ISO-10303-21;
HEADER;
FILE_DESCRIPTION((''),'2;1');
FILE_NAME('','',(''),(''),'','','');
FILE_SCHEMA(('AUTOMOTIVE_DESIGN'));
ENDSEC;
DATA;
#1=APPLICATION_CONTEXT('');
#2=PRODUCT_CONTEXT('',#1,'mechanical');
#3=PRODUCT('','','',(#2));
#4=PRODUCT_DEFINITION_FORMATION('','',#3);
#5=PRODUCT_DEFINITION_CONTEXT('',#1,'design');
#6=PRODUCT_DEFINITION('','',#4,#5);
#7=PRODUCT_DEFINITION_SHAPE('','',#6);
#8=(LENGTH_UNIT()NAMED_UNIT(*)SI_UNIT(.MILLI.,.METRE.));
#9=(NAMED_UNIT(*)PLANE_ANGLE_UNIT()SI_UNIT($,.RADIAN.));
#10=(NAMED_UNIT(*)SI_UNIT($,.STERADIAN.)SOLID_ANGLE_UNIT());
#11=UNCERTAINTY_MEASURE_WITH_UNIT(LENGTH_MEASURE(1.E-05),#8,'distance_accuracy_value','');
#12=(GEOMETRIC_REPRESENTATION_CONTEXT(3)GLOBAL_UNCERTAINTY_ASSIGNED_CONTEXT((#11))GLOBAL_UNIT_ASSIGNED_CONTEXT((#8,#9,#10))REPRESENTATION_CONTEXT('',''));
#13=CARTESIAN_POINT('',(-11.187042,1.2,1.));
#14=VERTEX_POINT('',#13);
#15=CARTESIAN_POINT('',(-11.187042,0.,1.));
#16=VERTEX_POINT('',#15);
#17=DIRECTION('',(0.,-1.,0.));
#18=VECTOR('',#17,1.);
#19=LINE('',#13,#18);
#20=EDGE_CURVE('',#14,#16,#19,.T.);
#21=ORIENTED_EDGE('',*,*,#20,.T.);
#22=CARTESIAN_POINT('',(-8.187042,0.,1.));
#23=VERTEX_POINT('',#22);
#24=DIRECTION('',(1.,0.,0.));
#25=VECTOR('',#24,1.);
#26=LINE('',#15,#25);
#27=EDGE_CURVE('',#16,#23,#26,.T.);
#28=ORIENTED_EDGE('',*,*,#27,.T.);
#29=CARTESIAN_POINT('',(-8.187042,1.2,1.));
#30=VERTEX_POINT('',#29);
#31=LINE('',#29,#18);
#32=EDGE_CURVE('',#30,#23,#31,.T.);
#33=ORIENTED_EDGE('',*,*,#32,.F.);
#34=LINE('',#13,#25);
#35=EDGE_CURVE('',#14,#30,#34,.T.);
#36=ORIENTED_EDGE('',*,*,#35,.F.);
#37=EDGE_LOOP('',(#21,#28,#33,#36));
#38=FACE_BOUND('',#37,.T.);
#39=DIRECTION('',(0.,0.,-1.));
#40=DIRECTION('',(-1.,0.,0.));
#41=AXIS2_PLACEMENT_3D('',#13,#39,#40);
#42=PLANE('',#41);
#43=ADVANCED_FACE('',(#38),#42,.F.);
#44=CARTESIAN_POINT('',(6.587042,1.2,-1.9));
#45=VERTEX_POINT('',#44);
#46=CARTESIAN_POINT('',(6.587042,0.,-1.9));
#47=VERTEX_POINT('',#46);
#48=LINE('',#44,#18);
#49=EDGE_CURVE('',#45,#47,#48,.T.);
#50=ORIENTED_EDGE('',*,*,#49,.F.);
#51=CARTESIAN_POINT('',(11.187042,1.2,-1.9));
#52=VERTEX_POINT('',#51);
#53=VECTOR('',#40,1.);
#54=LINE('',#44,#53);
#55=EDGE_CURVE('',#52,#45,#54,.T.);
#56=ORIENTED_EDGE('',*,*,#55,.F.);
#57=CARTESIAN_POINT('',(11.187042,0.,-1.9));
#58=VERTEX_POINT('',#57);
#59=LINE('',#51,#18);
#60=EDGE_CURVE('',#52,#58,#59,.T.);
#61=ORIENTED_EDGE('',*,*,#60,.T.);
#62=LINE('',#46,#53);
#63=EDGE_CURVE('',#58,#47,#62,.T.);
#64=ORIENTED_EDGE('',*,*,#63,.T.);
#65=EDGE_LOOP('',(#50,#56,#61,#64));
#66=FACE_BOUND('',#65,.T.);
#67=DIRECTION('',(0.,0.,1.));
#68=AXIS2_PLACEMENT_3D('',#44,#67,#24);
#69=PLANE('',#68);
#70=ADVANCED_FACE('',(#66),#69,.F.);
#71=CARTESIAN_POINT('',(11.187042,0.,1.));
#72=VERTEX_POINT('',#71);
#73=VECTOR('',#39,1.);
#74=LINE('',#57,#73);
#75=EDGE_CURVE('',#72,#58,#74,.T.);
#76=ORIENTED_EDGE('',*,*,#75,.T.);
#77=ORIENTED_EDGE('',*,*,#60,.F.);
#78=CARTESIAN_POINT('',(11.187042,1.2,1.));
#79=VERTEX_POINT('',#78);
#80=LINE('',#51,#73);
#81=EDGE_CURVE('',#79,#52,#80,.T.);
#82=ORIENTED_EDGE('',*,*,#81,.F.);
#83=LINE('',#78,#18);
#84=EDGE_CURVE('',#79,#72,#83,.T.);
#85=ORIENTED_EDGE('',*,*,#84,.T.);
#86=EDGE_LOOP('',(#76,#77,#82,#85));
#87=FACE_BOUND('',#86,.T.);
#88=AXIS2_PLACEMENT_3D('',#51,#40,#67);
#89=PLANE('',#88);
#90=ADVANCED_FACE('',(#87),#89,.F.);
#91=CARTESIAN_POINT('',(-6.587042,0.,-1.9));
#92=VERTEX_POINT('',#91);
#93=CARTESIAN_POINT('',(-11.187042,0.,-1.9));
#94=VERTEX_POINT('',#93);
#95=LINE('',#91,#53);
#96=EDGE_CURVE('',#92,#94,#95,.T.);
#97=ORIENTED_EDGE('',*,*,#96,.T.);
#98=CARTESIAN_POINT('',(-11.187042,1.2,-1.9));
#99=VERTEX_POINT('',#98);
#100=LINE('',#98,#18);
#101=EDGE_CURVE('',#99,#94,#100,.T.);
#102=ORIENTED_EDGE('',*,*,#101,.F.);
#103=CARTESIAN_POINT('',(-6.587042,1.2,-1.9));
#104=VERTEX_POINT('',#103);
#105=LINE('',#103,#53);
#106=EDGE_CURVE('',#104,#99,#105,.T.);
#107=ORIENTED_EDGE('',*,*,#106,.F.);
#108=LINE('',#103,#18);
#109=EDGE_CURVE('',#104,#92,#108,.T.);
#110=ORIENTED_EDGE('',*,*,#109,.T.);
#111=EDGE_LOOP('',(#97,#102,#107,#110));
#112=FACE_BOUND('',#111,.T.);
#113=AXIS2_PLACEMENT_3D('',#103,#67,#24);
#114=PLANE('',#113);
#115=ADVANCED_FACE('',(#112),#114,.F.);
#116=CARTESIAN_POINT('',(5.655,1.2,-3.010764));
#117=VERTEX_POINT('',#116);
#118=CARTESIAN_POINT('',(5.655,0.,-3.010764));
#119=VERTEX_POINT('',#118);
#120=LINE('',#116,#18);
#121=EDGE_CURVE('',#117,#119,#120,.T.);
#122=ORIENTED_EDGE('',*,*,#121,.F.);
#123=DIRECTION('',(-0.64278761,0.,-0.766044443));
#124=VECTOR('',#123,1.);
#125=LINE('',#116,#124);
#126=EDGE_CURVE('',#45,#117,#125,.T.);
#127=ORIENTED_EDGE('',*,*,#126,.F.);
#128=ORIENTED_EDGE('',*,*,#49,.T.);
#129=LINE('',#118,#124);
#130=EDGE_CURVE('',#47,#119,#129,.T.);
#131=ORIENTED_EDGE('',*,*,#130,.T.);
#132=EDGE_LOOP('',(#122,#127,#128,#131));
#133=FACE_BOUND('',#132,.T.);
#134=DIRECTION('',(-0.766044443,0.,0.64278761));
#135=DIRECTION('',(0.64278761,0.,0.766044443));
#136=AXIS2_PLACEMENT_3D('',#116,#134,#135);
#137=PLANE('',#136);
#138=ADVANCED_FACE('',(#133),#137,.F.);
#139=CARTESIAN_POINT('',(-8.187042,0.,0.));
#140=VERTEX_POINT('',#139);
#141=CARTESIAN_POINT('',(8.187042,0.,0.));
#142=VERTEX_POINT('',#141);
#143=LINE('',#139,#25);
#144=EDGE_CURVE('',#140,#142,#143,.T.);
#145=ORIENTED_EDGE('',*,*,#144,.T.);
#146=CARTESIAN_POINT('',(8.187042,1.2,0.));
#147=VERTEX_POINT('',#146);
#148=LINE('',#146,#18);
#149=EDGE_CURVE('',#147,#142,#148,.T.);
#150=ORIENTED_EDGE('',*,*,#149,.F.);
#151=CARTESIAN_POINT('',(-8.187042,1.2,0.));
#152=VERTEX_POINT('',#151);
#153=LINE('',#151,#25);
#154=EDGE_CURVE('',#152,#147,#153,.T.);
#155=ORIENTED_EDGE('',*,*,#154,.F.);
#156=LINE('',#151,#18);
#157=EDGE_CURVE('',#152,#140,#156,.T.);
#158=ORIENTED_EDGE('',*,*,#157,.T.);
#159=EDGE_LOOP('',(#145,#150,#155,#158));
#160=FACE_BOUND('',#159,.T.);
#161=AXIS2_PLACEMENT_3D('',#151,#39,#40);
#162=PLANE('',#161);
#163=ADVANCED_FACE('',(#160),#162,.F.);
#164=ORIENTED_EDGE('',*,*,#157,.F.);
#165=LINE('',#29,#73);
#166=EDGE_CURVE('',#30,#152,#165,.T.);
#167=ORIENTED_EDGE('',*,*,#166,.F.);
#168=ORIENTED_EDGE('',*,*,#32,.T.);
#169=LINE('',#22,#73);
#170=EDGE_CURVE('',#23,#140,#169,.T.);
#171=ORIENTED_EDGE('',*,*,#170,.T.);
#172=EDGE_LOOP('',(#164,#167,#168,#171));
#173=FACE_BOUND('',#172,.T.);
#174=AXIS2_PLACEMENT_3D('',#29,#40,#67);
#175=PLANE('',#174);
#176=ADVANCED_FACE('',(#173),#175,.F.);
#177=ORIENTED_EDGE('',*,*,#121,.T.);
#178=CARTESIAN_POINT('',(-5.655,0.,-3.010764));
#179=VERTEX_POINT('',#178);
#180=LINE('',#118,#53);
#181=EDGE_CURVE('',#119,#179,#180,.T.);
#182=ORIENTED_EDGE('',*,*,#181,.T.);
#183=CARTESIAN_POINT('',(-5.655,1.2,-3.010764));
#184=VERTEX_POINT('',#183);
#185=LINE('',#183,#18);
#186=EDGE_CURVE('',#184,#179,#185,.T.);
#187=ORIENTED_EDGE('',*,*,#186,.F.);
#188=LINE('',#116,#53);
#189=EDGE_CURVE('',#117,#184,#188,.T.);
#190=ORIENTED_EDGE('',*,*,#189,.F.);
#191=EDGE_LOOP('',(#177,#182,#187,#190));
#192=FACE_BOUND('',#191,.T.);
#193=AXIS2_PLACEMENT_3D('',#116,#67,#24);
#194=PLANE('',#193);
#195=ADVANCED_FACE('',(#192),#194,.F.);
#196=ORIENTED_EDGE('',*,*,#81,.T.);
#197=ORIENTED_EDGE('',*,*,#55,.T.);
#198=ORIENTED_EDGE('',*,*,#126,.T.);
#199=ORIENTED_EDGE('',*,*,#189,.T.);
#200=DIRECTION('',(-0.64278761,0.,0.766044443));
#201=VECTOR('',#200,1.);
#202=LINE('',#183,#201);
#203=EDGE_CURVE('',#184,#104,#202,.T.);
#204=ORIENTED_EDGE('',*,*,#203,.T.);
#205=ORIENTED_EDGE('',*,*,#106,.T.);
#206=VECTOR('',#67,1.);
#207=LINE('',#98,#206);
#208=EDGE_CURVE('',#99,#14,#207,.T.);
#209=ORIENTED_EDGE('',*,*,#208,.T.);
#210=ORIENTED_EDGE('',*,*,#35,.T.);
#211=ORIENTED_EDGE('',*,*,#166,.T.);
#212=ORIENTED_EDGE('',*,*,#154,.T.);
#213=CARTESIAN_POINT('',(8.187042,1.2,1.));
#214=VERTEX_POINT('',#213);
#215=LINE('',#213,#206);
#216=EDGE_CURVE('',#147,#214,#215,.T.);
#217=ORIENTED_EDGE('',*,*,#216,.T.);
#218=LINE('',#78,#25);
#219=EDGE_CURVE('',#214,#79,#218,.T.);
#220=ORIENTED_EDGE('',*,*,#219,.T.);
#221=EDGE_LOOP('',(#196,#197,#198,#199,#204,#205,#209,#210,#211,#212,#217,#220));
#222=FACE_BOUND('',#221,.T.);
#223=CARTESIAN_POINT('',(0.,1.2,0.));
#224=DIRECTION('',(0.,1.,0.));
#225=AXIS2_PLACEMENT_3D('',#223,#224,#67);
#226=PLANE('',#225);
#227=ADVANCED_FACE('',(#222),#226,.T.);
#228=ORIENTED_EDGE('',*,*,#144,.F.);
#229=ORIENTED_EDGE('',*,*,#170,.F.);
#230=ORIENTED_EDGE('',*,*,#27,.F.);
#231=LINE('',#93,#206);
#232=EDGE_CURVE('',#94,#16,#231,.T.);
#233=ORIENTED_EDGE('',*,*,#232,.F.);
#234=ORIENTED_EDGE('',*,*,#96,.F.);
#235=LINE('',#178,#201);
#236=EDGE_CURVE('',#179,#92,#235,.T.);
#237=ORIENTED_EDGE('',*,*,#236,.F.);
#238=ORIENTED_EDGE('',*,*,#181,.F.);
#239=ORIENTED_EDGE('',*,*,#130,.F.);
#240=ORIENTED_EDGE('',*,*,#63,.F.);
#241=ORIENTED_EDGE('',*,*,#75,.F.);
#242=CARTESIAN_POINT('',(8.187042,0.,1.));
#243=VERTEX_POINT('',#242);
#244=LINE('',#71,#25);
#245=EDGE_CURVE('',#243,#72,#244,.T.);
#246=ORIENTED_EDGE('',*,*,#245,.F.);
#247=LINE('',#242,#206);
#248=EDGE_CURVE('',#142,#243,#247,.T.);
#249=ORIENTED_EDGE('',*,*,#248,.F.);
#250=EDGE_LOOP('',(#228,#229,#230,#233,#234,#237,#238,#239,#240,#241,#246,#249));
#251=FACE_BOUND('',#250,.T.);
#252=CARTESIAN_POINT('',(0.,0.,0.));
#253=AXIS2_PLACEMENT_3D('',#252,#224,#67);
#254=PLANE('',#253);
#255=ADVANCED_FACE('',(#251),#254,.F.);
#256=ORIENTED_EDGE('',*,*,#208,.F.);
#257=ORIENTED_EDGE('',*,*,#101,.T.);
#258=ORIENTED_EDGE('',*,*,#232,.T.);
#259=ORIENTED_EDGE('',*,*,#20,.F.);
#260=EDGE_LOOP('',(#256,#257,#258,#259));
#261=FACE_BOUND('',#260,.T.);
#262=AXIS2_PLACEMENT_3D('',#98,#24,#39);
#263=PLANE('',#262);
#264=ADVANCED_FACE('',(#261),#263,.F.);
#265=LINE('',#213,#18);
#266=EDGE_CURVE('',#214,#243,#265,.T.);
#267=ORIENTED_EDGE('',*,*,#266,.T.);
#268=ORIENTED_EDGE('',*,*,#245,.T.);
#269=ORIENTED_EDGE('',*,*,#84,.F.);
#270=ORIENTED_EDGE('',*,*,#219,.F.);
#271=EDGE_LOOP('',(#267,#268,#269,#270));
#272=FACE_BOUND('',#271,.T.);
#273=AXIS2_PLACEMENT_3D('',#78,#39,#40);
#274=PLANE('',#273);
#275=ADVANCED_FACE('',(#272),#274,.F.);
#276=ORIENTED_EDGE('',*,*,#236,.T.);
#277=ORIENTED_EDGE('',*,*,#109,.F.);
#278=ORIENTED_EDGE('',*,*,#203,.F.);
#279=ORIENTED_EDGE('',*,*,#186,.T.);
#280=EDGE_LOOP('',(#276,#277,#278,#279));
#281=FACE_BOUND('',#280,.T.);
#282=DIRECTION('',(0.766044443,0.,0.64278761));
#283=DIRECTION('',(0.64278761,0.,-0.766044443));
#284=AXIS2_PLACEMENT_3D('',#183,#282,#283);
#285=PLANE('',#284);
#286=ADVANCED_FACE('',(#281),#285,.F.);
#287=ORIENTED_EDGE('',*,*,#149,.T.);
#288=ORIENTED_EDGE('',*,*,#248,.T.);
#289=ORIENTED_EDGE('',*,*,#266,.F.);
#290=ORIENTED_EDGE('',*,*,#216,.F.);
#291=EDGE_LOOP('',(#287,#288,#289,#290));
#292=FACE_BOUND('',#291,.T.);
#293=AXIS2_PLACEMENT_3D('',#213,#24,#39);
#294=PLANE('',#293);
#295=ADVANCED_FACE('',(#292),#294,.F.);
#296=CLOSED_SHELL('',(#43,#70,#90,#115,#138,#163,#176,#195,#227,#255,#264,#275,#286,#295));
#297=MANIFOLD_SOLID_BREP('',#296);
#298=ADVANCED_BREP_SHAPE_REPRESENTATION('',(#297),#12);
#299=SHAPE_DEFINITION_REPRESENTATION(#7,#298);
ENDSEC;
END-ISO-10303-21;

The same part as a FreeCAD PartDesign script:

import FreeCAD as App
import Part
import Sketcher
from FreeCAD import Vector
Q = App.Units.Quantity

doc = App.newDocument("Part")
body = doc.addObject("PartDesign::Body", "Body")

# Sketch on XZ plane
sketch1 = doc.addObject("Sketcher::SketchObject", "Sketch")
body.addObject(sketch1)
sketch1.AttachmentSupport = (doc.XZ_Plane, [""])
sketch1.MapMode = "FlatFace"
sketch1.addGeometry([
    Part.LineSegment(Vector(5.7, -3, 0), Vector(-5.7, -3, 0)),  # 0
    Part.LineSegment(Vector(-5.7, -3, 0), Vector(-6.6, -1.9, 0)),  # 1
    Part.LineSegment(Vector(-6.6, -1.9, 0), Vector(-11.2, -1.9, 0)),  # 2
    Part.LineSegment(Vector(-11.2, -1.9, 0), Vector(-11.2, 1, 0)),  # 3
    Part.LineSegment(Vector(-11.2, 1, 0), Vector(-8.2, 1, 0)),  # 4
    Part.LineSegment(Vector(-8.2, 1, 0), Vector(-8.2, 0, 0)),  # 5
    Part.LineSegment(Vector(-8.2, 0, 0), Vector(8.2, 0, 0)),  # 6
    Part.LineSegment(Vector(8.2, 0, 0), Vector(8.2, 1, 0)),  # 7
    Part.LineSegment(Vector(8.2, 1, 0), Vector(11.2, 1, 0)),  # 8
    Part.LineSegment(Vector(11.2, 1, 0), Vector(11.2, -1.9, 0)),  # 9
    Part.LineSegment(Vector(11.2, -1.9, 0), Vector(6.6, -1.9, 0)),  # 10
    Part.LineSegment(Vector(6.6, -1.9, 0), Vector(5.7, -3, 0)),  # 11
], False)
sketch1.addConstraint([
    Sketcher.Constraint("Coincident", 0, 2, 1, 1),
    Sketcher.Constraint("Coincident", 1, 2, 2, 1),
    Sketcher.Constraint("Coincident", 2, 2, 3, 1),
    Sketcher.Constraint("Coincident", 3, 2, 4, 1),
    Sketcher.Constraint("Coincident", 4, 2, 5, 1),
    Sketcher.Constraint("Coincident", 5, 2, 6, 1),
    Sketcher.Constraint("Coincident", 6, 2, 7, 1),
    Sketcher.Constraint("Coincident", 7, 2, 8, 1),
    Sketcher.Constraint("Coincident", 8, 2, 9, 1),
    Sketcher.Constraint("Coincident", 9, 2, 10, 1),
    Sketcher.Constraint("Coincident", 10, 2, 11, 1),
    Sketcher.Constraint("Coincident", 11, 2, 0, 1),
    Sketcher.Constraint("Horizontal", 0),
    Sketcher.Constraint("Horizontal", 2),
    Sketcher.Constraint("Vertical", 3),
    Sketcher.Constraint("Horizontal", 4),
    Sketcher.Constraint("Vertical", 5),
    Sketcher.Constraint("Horizontal", 6),
    Sketcher.Constraint("Vertical", 7),
    Sketcher.Constraint("Horizontal", 8),
    Sketcher.Constraint("Vertical", 9),
    Sketcher.Constraint("Horizontal", 10),
    Sketcher.Constraint("Symmetric", 5, 2, 6, 2, -1, 1),
    Sketcher.Constraint("Symmetric", 3, 2, 8, 2, -2),
    Sketcher.Constraint("Symmetric", 1, 2, 10, 2, -2),
    Sketcher.Constraint("Equal", 1, 11),
    Sketcher.Constraint("DistanceX", 4, 1, 4, 2, Q("3 mm")),
    Sketcher.Constraint("DistanceY", 5, 2, 5, 1, Q("1 mm")),
    Sketcher.Constraint("Angle", 1, Q("130 deg")),
    Sketcher.Constraint("DistanceX", 2, 2, 2, 1, Q("4.6 mm")),
    Sketcher.Constraint("DistanceY", 3, 1, 3, 2, Q("2.9 mm")),
    Sketcher.Constraint("DistanceX", 0, 2, 0, 1, Q("11.31 mm")),
    Sketcher.Constraint("Distance", 1, Q("1.45 mm")),
])
pad1 = doc.addObject("PartDesign::Pad", "Pad")
body.addObject(pad1)
pad1.Profile = sketch1
pad1.Length = 1.2
pad1.Reversed = True

doc.recompute()
